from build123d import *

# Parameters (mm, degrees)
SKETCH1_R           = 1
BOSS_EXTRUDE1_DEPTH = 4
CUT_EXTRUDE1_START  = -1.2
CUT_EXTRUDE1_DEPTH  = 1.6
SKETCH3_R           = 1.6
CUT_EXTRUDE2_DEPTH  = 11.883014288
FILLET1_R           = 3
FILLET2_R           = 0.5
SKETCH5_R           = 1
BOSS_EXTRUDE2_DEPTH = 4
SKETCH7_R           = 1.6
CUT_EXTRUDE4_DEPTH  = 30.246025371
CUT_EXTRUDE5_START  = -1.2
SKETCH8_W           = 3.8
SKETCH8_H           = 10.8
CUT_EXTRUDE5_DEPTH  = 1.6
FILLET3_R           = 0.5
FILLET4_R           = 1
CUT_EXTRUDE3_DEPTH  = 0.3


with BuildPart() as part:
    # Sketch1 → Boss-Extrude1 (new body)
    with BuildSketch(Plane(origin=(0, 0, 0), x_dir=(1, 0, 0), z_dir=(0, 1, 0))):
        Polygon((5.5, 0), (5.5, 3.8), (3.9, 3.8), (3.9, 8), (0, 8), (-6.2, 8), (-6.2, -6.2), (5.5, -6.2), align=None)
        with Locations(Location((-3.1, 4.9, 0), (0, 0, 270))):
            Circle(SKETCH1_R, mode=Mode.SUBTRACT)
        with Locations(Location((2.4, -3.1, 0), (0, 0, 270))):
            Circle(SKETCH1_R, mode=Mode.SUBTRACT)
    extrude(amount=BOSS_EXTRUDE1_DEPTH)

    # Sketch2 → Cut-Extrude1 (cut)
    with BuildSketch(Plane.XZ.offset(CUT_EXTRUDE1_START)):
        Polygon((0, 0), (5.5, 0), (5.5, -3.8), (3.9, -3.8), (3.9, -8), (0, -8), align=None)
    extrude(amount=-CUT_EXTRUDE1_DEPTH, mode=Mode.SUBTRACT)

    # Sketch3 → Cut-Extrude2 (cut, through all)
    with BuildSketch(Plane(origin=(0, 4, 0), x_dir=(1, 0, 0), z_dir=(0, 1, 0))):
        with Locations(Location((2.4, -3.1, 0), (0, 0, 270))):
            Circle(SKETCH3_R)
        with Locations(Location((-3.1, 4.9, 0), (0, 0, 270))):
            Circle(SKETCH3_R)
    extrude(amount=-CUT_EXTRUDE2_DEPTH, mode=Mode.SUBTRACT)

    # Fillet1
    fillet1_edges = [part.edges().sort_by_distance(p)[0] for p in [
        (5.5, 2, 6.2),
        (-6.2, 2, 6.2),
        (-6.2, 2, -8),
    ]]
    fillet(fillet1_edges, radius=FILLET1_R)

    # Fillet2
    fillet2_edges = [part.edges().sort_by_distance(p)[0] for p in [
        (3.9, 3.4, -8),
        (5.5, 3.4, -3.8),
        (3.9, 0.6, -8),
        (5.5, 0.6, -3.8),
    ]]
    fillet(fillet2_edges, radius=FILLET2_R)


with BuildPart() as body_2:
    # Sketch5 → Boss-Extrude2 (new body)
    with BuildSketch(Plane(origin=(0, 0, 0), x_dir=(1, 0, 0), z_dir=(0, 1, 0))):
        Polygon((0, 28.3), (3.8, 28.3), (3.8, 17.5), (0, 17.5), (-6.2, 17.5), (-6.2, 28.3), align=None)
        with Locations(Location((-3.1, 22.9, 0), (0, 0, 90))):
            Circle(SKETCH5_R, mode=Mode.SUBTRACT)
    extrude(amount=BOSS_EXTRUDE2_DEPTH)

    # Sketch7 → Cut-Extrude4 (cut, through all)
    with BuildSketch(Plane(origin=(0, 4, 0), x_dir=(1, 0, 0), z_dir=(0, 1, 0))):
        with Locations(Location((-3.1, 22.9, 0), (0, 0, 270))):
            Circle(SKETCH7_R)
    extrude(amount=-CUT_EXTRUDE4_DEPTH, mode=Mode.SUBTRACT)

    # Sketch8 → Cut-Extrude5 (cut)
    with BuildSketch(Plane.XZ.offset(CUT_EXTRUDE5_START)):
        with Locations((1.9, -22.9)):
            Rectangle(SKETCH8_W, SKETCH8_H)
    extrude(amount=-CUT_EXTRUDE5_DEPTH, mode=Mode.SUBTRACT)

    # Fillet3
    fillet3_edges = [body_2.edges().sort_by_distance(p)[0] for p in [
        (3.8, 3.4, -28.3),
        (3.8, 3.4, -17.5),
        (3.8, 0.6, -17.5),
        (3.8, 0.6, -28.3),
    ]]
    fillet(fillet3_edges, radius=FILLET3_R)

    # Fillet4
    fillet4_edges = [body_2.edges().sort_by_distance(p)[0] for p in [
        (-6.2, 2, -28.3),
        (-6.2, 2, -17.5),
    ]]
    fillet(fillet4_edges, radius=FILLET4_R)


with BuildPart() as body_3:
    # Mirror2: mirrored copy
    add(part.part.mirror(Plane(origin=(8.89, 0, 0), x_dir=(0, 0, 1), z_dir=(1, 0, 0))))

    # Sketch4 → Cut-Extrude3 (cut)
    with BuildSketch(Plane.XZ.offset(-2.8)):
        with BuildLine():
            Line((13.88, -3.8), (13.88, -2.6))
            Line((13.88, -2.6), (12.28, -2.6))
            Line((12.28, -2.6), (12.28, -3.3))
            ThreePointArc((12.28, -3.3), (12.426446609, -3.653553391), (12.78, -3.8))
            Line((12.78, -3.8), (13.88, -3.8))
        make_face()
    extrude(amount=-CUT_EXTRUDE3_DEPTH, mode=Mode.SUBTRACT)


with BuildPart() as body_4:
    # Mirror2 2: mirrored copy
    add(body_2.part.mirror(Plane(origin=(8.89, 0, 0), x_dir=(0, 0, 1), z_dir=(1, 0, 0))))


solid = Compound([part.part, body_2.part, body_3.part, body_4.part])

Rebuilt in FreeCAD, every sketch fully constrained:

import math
import FreeCAD as App
import Part
import Sketcher


def edges_at(feature, points):
    """Names of the edges that pass closest to the given points."""
    edges = feature.Shape.Edges
    near = lambda p: min(range(len(edges)), key=lambda i: edges[i].distToShape(Part.Vertex(*p))[0])
    return sorted({f"Edge{near(p) + 1}" for p in points})

doc = App.newDocument("Part")
body = doc.addObject("PartDesign::Body", "Body")

sketch1 = doc.addObject("Sketcher::SketchObject", "Sketch")
body.addObject(sketch1)
sketch1.AttachmentSupport = (doc.XZ_Plane, [""])
sketch1.MapMode = "FlatFace"
sketch1.addGeometry(Part.LineSegment(App.Vector(5.5, -3.8, 0), App.Vector(3.9, -3.8, 0)), False)
sketch1.addGeometry(Part.LineSegment(App.Vector(3.9, -3.8, 0), App.Vector(3.9, -8, 0)), False)
sketch1.addGeometry(Part.LineSegment(App.Vector(3.9, -8, 0), App.Vector(-6.2, -8, 0)), False)
sketch1.addGeometry(Part.LineSegment(App.Vector(-6.2, -8, 0), App.Vector(-6.2, 6.2, 0)), False)
sketch1.addGeometry(Part.LineSegment(App.Vector(-6.2, 6.2, 0), App.Vector(5.5, 6.2, 0)), False)
sketch1.addGeometry(Part.LineSegment(App.Vector(5.5, 6.2, 0), App.Vector(5.5, -3.8, 0)), False)
sketch1.addGeometry(Part.Circle(App.Vector(2.4, 3.1, 0), App.Vector(0, 0, 1), 1), False)
sketch1.addGeometry(Part.Circle(App.Vector(-3.1, -4.9, 0), App.Vector(0, 0, 1), 1), False)
sketch1.addConstraint(Sketcher.Constraint("Coincident", 0, 2, 1, 1))
sketch1.addConstraint(Sketcher.Constraint("Coincident", 1, 2, 2, 1))
sketch1.addConstraint(Sketcher.Constraint("Coincident", 2, 2, 3, 1))
sketch1.addConstraint(Sketcher.Constraint("Coincident", 3, 2, 4, 1))
sketch1.addConstraint(Sketcher.Constraint("Coincident", 4, 2, 5, 1))
sketch1.addConstraint(Sketcher.Constraint("Coincident", 5, 2, 0, 1))
sketch1.addConstraint(Sketcher.Constraint("Horizontal", 0))
sketch1.addConstraint(Sketcher.Constraint("Vertical", 1))
sketch1.addConstraint(Sketcher.Constraint("Horizontal", 2))
sketch1.addConstraint(Sketcher.Constraint("Vertical", 3))
sketch1.addConstraint(Sketcher.Constraint("Horizontal", 4))
sketch1.addConstraint(Sketcher.Constraint("Vertical", 5))
sketch1.addConstraint(Sketcher.Constraint("Equal", 6, 7))
sketch1.addConstraint(Sketcher.Constraint("Diameter", 6, 2.0))
sketch1.addConstraint(Sketcher.Constraint("DistanceY", 5, 2, 5, 1, 10.0))
sketch1.addConstraint(Sketcher.Constraint("DistanceX", 0, 2, 0, 1, 1.6))
sketch1.addConstraint(Sketcher.Constraint("DistanceX", 2, 2, 2, 1, 10.1))
sketch1.addConstraint(Sketcher.Constraint("DistanceY", 1, 2, 1, 1, 4.2))
sketch1.addConstraint(Sketcher.Constraint("DistanceY", 1, 2, -1, 1, 8.0))
sketch1.addConstraint(Sketcher.Constraint("DistanceY", 7, 3, 6, 3, 8.0))
sketch1.addConstraint(Sketcher.Constraint("DistanceX", 7, 3, 0, 2, 7.0))
sketch1.addConstraint(Sketcher.Constraint("DistanceX", -1, 1, 6, 3, 2.4))
sketch1.addConstraint(Sketcher.Constraint("DistanceY", -1, 1, 6, 3, 3.1))
sketch1.addConstraint(Sketcher.Constraint("DistanceX", 7, 3, -1, 1, 3.1))
pad1 = doc.addObject("PartDesign::Pad", "Pad")
body.addObject(pad1)
pad1.Profile = sketch1
pad1.Length = 4
pad1.Reversed = True

sketch2 = doc.addObject("Sketcher::SketchObject", "Sketch001")
body.addObject(sketch2)
sketch2.AttachmentSupport = (doc.XZ_Plane, [""])
sketch2.MapMode = "FlatFace"
sketch2.AttachmentOffset = App.Placement(App.Vector(0, 0, -1.2), App.Rotation())
sketch2.addGeometry(Part.LineSegment(App.Vector(5.5, 0, 0), App.Vector(0, 0, 0)), False)
sketch2.addGeometry(Part.LineSegment(App.Vector(0, 0, 0), App.Vector(0, -8, 0)), False)
sketch2.addGeometry(Part.LineSegment(App.Vector(0, -8, 0), App.Vector(3.9, -8, 0)), False)
sketch2.addGeometry(Part.LineSegment(App.Vector(3.9, -8, 0), App.Vector(3.9, -3.8, 0)), False)
sketch2.addGeometry(Part.LineSegment(App.Vector(3.9, -3.8, 0), App.Vector(5.5, -3.8, 0)), False)
sketch2.addGeometry(Part.LineSegment(App.Vector(5.5, -3.8, 0), App.Vector(5.5, 0, 0)), False)
sketch2.addConstraint(Sketcher.Constraint("Coincident", 0, 2, 1, 1))
sketch2.addConstraint(Sketcher.Constraint("Coincident", 1, 2, 2, 1))
sketch2.addConstraint(Sketcher.Constraint("Coincident", 2, 2, 3, 1))
sketch2.addConstraint(Sketcher.Constraint("Coincident", 3, 2, 4, 1))
sketch2.addConstraint(Sketcher.Constraint("Coincident", 4, 2, 5, 1))
sketch2.addConstraint(Sketcher.Constraint("Coincident", 5, 2, 0, 1))
sketch2.addConstraint(Sketcher.Constraint("Horizontal", 0))
sketch2.addConstraint(Sketcher.Constraint("Vertical", 1))
sketch2.addConstraint(Sketcher.Constraint("Horizontal", 2))
sketch2.addConstraint(Sketcher.Constraint("Vertical", 3))
sketch2.addConstraint(Sketcher.Constraint("Horizontal", 4))
sketch2.addConstraint(Sketcher.Constraint("Vertical", 5))
sketch2.addConstraint(Sketcher.Constraint("Coincident", 0, 2, -1, 1))
sketch2.addConstraint(Sketcher.Constraint("DistanceY", 1, 2, 1, 1, 8.0))
sketch2.addConstraint(Sketcher.Constraint("DistanceX", 0, 2, 0, 1, 5.5))
sketch2.addConstraint(Sketcher.Constraint("DistanceX", 2, 1, 2, 2, 3.9))
sketch2.addConstraint(Sketcher.Constraint("DistanceY", 3, 1, 3, 2, 4.2))
pocket1 = doc.addObject("PartDesign::Pocket", "Pocket")
body.addObject(pocket1)
pocket1.Profile = sketch2
pocket1.Length = 1.6

sketch3 = doc.addObject("Sketcher::SketchObject", "Sketch002")
body.addObject(sketch3)
sketch3.AttachmentSupport = (doc.XZ_Plane, [""])
sketch3.MapMode = "FlatFace"
sketch3.AttachmentOffset = App.Placement(App.Vector(0, 0, -4), App.Rotation())
sketch3.addGeometry(Part.Circle(App.Vector(2.4, 3.1, 0), App.Vector(0, 0, 1), 1.6), False)
sketch3.addGeometry(Part.Circle(App.Vector(-3.1, -4.9, 0), App.Vector(0, 0, 1), 1.6), False)
sketch3.addConstraint(Sketcher.Constraint("Equal", 0, 1))
sketch3.addConstraint(Sketcher.Constraint("Diameter", 0, 3.2))
sketch3.addConstraint(Sketcher.Constraint("DistanceY", 1, 3, 0, 3, 8.0))
sketch3.addConstraint(Sketcher.Constraint("DistanceX", -1, 1, 0, 3, 2.4))
sketch3.addConstraint(Sketcher.Constraint("DistanceY", -1, 1, 0, 3, 3.1))
sketch3.addConstraint(Sketcher.Constraint("DistanceX", 1, 3, -1, 1, 3.1))
pocket2 = doc.addObject("PartDesign::Pocket", "Pocket001")
body.addObject(pocket2)
pocket2.Profile = sketch3
pocket2.Type = "ThroughAll"
pocket2.Reversed = True
doc.recompute()

fillet = doc.addObject("PartDesign::Fillet", "Fillet")
body.addObject(fillet)
fillet.Base = (pocket2, edges_at(pocket2, [(5.5, 2, 6.2), (-6.2, 2, 6.2), (-6.2, 2, -8)]))
fillet.Radius = 3
doc.recompute()

fillet2 = doc.addObject("PartDesign::Fillet", "Fillet001")
body.addObject(fillet2)
fillet2.Base = (fillet, edges_at(fillet, [
    (3.9, 3.4, -8),
    (5.5, 3.4, -3.8),
    (3.9, 0.6, -8),
    (5.5, 0.6, -3.8),
]))
fillet2.Radius = 0.5
body2 = doc.addObject("PartDesign::Body", "Body001")

sketch4 = doc.addObject("Sketcher::SketchObject", "Sketch003")
body2.addObject(sketch4)
sketch4.AttachmentSupport = (doc.getObject("XZ_Plane001"), [""])
sketch4.MapMode = "FlatFace"
sketch4.addGeometry(Part.LineSegment(App.Vector(3.8, -28.3, 0), App.Vector(-6.2, -28.3, 0)), False)
sketch4.addGeometry(Part.LineSegment(App.Vector(-6.2, -28.3, 0), App.Vector(-6.2, -17.5, 0)), False)
sketch4.addGeometry(Part.LineSegment(App.Vector(-6.2, -17.5, 0), App.Vector(3.8, -17.5, 0)), False)
sketch4.addGeometry(Part.LineSegment(App.Vector(3.8, -17.5, 0), App.Vector(3.8, -28.3, 0)), False)
sketch4.addGeometry(Part.Circle(App.Vector(-3.1, -22.9, 0), App.Vector(0, 0, 1), 1), False)
sketch4.addConstraint(Sketcher.Constraint("Coincident", 0, 2, 1, 1))
sketch4.addConstraint(Sketcher.Constraint("Coincident", 1, 2, 2, 1))
sketch4.addConstraint(Sketcher.Constraint("Coincident", 2, 2, 3, 1))
sketch4.addConstraint(Sketcher.Constraint("Coincident", 3, 2, 0, 1))
sketch4.addConstraint(Sketcher.Constraint("Horizontal", 0))
sketch4.addConstraint(Sketcher.Constraint("Vertical", 1))
sketch4.addConstraint(Sketcher.Constraint("Horizontal", 2))
sketch4.addConstraint(Sketcher.Constraint("Vertical", 3))
sketch4.addConstraint(Sketcher.Constraint("Diameter", 4, 2.0))
sketch4.addConstraint(Sketcher.Constraint("DistanceX", 0, 2, 0, 1, 10.0))
sketch4.addConstraint(Sketcher.Constraint("DistanceY", 1, 1, 1, 2, 10.8))
sketch4.addConstraint(Sketcher.Constraint("DistanceX", 4, 3, -1, 1, 3.1))
sketch4.addConstraint(Sketcher.Constraint("DistanceY", 4, 3, -1, 1, 22.9))
sketch4.addConstraint(Sketcher.Constraint("DistanceX", 0, 2, -1, 1, 6.2))
sketch4.addConstraint(Sketcher.Constraint("DistanceY", 0, 2, -1, 1, 28.3))
pad2 = doc.addObject("PartDesign::Pad", "Pad001")
body2.addObject(pad2)
pad2.Profile = sketch4
pad2.Length = 4
pad2.Reversed = True

sketch5 = doc.addObject("Sketcher::SketchObject", "Sketch004")
body2.addObject(sketch5)
sketch5.AttachmentSupport = (doc.getObject("XZ_Plane001"), [""])
sketch5.MapMode = "FlatFace"
sketch5.AttachmentOffset = App.Placement(App.Vector(0, 0, -4), App.Rotation())
sketch5.addGeometry(Part.Circle(App.Vector(-3.1, -22.9, 0), App.Vector(0, 0, 1), 1.6), False)
sketch5.addConstraint(Sketcher.Constraint("Diameter", 0, 3.2))
sketch5.addConstraint(Sketcher.Constraint("DistanceX", 0, 3, -1, 1, 3.1))
sketch5.addConstraint(Sketcher.Constraint("DistanceY", 0, 3, -1, 1, 22.9))
pocket3 = doc.addObject("PartDesign::Pocket", "Pocket002")
body2.addObject(pocket3)
pocket3.Profile = sketch5
pocket3.Type = "ThroughAll"
pocket3.Reversed = True

sketch6 = doc.addObject("Sketcher::SketchObject", "Sketch005")
body2.addObject(sketch6)
sketch6.AttachmentSupport = (doc.getObject("XZ_Plane001"), [""])
sketch6.MapMode = "FlatFace"
sketch6.AttachmentOffset = App.Placement(App.Vector(0, 0, -1.2), App.Rotation())
sketch6.addGeometry(Part.LineSegment(App.Vector(0, -17.5, 0), App.Vector(0, -28.3, 0)), False)
sketch6.addGeometry(Part.LineSegment(App.Vector(0, -28.3, 0), App.Vector(3.8, -28.3, 0)), False)
sketch6.addGeometry(Part.LineSegment(App.Vector(3.8, -28.3, 0), App.Vector(3.8, -17.5, 0)), False)
sketch6.addGeometry(Part.LineSegment(App.Vector(3.8, -17.5, 0), App.Vector(0, -17.5, 0)), False)
sketch6.addConstraint(Sketcher.Constraint("Coincident", 0, 2, 1, 1))
sketch6.addConstraint(Sketcher.Constraint("Coincident", 1, 2, 2, 1))
sketch6.addConstraint(Sketcher.Constraint("Coincident", 2, 2, 3, 1))
sketch6.addConstraint(Sketcher.Constraint("Coincident", 3, 2, 0, 1))
sketch6.addConstraint(Sketcher.Constraint("Vertical", 0))
sketch6.addConstraint(Sketcher.Constraint("Horizontal", 1))
sketch6.addConstraint(Sketcher.Constraint("Vertical", 2))
sketch6.addConstraint(Sketcher.Constraint("Horizontal", 3))
sketch6.addConstraint(Sketcher.Constraint("PointOnObject", 0, 2, -2))
sketch6.addConstraint(Sketcher.Constraint("DistanceX", 1, 1, 1, 2, 3.8))
sketch6.addConstraint(Sketcher.Constraint("DistanceY", 0, 2, 0, 1, 10.8))
sketch6.addConstraint(Sketcher.Constraint("DistanceY", 0, 2, -1, 1, 28.3))
pocket4 = doc.addObject("PartDesign::Pocket", "Pocket003")
body2.addObject(pocket4)
pocket4.Profile = sketch6
pocket4.Length = 1.6
doc.recompute()

fillet3 = doc.addObject("PartDesign::Fillet", "Fillet002")
body2.addObject(fillet3)
fillet3.Base = (pocket4, edges_at(pocket4, [
    (3.8, 3.4, -28.3),
    (3.8, 3.4, -17.5),
    (3.8, 0.6, -17.5),
    (3.8, 0.6, -28.3),
]))
fillet3.Radius = 0.5
doc.recompute()

fillet4 = doc.addObject("PartDesign::Fillet", "Fillet003")
body2.addObject(fillet4)
fillet4.Base = (fillet3, edges_at(fillet3, [(-6.2, 2, -28.3), (-6.2, 2, -17.5)]))
fillet4.Radius = 1
body3 = doc.addObject("PartDesign::Body", "Body002")
doc.recompute()

mirroring = doc.addObject("Part::Mirroring", "Mirroring")
mirroring.Source = body
mirroring.Base = App.Vector(8.89, 0, 0)
mirroring.Normal = App.Vector(1, 0, 0)
body3.BaseFeature = mirroring
doc.recompute()

sketch7 = doc.addObject("Sketcher::SketchObject", "Sketch006")
body3.addObject(sketch7)
sketch7.AttachmentSupport = (doc.getObject("XZ_Plane002"), [""])
sketch7.MapMode = "FlatFace"
sketch7.AttachmentOffset = App.Placement(App.Vector(0, 0, -2.8), App.Rotation())
sketch7.addGeometry(Part.LineSegment(App.Vector(13.88, -3.8, 0), App.Vector(13.88, -2.6, 0)), False)
sketch7.addGeometry(Part.LineSegment(App.Vector(13.88, -2.6, 0), App.Vector(12.28, -2.6, 0)), False)
sketch7.addGeometry(Part.LineSegment(App.Vector(12.28, -2.6, 0), App.Vector(12.28, -3.3, 0)), False)
sketch7.addGeometry(Part.ArcOfCircle(Part.Circle(App.Vector(12.78, -3.3, 0), App.Vector(0, 0, 1), 0.5), math.radians(180), math.radians(270)), False)
sketch7.addGeometry(Part.LineSegment(App.Vector(12.78, -3.8, 0), App.Vector(13.88, -3.8, 0)), False)
sketch7.addConstraint(Sketcher.Constraint("Coincident", 0, 2, 1, 1))
sketch7.addConstraint(Sketcher.Constraint("Coincident", 1, 2, 2, 1))
sketch7.addConstraint(Sketcher.Constraint("Tangent", 2, 2, 3, 1))
sketch7.addConstraint(Sketcher.Constraint("Tangent", 3, 2, 4, 1))
sketch7.addConstraint(Sketcher.Constraint("Coincident", 4, 2, 0, 1))
sketch7.addConstraint(Sketcher.Constraint("Vertical", 0))
sketch7.addConstraint(Sketcher.Constraint("Horizontal", 1))
sketch7.addConstraint(Sketcher.Constraint("Vertical", 2))
sketch7.addConstraint(Sketcher.Constraint("Horizontal", 4))
sketch7.addConstraint(Sketcher.Constraint("Radius", 3, 0.5))
sketch7.addConstraint(Sketcher.Constraint("DistanceX", 1, 2, 1, 1, 1.6))
sketch7.addConstraint(Sketcher.Constraint("DistanceY", 0, 1, 0, 2, 1.2))
sketch7.addConstraint(Sketcher.Constraint("DistanceY", 3, 3, -1, 1, 3.3))
sketch7.addConstraint(Sketcher.Constraint("DistanceX", -1, 1, 3, 3, 12.78))
pocket5 = doc.addObject("PartDesign::Pocket", "Pocket004")
body3.addObject(pocket5)
pocket5.Profile = sketch7
pocket5.Length = 0.3
body4 = doc.addObject("PartDesign::Body", "Body003")
doc.recompute()

mirroring2 = doc.addObject("Part::Mirroring", "Mirroring001")
mirroring2.Source = body2
mirroring2.Base = App.Vector(8.89, 0, 0)
mirroring2.Normal = App.Vector(1, 0, 0)
body4.BaseFeature = mirroring2
doc.recompute()
mirroring.Visibility = False
mirroring2.Visibility = False

doc.recompute()
